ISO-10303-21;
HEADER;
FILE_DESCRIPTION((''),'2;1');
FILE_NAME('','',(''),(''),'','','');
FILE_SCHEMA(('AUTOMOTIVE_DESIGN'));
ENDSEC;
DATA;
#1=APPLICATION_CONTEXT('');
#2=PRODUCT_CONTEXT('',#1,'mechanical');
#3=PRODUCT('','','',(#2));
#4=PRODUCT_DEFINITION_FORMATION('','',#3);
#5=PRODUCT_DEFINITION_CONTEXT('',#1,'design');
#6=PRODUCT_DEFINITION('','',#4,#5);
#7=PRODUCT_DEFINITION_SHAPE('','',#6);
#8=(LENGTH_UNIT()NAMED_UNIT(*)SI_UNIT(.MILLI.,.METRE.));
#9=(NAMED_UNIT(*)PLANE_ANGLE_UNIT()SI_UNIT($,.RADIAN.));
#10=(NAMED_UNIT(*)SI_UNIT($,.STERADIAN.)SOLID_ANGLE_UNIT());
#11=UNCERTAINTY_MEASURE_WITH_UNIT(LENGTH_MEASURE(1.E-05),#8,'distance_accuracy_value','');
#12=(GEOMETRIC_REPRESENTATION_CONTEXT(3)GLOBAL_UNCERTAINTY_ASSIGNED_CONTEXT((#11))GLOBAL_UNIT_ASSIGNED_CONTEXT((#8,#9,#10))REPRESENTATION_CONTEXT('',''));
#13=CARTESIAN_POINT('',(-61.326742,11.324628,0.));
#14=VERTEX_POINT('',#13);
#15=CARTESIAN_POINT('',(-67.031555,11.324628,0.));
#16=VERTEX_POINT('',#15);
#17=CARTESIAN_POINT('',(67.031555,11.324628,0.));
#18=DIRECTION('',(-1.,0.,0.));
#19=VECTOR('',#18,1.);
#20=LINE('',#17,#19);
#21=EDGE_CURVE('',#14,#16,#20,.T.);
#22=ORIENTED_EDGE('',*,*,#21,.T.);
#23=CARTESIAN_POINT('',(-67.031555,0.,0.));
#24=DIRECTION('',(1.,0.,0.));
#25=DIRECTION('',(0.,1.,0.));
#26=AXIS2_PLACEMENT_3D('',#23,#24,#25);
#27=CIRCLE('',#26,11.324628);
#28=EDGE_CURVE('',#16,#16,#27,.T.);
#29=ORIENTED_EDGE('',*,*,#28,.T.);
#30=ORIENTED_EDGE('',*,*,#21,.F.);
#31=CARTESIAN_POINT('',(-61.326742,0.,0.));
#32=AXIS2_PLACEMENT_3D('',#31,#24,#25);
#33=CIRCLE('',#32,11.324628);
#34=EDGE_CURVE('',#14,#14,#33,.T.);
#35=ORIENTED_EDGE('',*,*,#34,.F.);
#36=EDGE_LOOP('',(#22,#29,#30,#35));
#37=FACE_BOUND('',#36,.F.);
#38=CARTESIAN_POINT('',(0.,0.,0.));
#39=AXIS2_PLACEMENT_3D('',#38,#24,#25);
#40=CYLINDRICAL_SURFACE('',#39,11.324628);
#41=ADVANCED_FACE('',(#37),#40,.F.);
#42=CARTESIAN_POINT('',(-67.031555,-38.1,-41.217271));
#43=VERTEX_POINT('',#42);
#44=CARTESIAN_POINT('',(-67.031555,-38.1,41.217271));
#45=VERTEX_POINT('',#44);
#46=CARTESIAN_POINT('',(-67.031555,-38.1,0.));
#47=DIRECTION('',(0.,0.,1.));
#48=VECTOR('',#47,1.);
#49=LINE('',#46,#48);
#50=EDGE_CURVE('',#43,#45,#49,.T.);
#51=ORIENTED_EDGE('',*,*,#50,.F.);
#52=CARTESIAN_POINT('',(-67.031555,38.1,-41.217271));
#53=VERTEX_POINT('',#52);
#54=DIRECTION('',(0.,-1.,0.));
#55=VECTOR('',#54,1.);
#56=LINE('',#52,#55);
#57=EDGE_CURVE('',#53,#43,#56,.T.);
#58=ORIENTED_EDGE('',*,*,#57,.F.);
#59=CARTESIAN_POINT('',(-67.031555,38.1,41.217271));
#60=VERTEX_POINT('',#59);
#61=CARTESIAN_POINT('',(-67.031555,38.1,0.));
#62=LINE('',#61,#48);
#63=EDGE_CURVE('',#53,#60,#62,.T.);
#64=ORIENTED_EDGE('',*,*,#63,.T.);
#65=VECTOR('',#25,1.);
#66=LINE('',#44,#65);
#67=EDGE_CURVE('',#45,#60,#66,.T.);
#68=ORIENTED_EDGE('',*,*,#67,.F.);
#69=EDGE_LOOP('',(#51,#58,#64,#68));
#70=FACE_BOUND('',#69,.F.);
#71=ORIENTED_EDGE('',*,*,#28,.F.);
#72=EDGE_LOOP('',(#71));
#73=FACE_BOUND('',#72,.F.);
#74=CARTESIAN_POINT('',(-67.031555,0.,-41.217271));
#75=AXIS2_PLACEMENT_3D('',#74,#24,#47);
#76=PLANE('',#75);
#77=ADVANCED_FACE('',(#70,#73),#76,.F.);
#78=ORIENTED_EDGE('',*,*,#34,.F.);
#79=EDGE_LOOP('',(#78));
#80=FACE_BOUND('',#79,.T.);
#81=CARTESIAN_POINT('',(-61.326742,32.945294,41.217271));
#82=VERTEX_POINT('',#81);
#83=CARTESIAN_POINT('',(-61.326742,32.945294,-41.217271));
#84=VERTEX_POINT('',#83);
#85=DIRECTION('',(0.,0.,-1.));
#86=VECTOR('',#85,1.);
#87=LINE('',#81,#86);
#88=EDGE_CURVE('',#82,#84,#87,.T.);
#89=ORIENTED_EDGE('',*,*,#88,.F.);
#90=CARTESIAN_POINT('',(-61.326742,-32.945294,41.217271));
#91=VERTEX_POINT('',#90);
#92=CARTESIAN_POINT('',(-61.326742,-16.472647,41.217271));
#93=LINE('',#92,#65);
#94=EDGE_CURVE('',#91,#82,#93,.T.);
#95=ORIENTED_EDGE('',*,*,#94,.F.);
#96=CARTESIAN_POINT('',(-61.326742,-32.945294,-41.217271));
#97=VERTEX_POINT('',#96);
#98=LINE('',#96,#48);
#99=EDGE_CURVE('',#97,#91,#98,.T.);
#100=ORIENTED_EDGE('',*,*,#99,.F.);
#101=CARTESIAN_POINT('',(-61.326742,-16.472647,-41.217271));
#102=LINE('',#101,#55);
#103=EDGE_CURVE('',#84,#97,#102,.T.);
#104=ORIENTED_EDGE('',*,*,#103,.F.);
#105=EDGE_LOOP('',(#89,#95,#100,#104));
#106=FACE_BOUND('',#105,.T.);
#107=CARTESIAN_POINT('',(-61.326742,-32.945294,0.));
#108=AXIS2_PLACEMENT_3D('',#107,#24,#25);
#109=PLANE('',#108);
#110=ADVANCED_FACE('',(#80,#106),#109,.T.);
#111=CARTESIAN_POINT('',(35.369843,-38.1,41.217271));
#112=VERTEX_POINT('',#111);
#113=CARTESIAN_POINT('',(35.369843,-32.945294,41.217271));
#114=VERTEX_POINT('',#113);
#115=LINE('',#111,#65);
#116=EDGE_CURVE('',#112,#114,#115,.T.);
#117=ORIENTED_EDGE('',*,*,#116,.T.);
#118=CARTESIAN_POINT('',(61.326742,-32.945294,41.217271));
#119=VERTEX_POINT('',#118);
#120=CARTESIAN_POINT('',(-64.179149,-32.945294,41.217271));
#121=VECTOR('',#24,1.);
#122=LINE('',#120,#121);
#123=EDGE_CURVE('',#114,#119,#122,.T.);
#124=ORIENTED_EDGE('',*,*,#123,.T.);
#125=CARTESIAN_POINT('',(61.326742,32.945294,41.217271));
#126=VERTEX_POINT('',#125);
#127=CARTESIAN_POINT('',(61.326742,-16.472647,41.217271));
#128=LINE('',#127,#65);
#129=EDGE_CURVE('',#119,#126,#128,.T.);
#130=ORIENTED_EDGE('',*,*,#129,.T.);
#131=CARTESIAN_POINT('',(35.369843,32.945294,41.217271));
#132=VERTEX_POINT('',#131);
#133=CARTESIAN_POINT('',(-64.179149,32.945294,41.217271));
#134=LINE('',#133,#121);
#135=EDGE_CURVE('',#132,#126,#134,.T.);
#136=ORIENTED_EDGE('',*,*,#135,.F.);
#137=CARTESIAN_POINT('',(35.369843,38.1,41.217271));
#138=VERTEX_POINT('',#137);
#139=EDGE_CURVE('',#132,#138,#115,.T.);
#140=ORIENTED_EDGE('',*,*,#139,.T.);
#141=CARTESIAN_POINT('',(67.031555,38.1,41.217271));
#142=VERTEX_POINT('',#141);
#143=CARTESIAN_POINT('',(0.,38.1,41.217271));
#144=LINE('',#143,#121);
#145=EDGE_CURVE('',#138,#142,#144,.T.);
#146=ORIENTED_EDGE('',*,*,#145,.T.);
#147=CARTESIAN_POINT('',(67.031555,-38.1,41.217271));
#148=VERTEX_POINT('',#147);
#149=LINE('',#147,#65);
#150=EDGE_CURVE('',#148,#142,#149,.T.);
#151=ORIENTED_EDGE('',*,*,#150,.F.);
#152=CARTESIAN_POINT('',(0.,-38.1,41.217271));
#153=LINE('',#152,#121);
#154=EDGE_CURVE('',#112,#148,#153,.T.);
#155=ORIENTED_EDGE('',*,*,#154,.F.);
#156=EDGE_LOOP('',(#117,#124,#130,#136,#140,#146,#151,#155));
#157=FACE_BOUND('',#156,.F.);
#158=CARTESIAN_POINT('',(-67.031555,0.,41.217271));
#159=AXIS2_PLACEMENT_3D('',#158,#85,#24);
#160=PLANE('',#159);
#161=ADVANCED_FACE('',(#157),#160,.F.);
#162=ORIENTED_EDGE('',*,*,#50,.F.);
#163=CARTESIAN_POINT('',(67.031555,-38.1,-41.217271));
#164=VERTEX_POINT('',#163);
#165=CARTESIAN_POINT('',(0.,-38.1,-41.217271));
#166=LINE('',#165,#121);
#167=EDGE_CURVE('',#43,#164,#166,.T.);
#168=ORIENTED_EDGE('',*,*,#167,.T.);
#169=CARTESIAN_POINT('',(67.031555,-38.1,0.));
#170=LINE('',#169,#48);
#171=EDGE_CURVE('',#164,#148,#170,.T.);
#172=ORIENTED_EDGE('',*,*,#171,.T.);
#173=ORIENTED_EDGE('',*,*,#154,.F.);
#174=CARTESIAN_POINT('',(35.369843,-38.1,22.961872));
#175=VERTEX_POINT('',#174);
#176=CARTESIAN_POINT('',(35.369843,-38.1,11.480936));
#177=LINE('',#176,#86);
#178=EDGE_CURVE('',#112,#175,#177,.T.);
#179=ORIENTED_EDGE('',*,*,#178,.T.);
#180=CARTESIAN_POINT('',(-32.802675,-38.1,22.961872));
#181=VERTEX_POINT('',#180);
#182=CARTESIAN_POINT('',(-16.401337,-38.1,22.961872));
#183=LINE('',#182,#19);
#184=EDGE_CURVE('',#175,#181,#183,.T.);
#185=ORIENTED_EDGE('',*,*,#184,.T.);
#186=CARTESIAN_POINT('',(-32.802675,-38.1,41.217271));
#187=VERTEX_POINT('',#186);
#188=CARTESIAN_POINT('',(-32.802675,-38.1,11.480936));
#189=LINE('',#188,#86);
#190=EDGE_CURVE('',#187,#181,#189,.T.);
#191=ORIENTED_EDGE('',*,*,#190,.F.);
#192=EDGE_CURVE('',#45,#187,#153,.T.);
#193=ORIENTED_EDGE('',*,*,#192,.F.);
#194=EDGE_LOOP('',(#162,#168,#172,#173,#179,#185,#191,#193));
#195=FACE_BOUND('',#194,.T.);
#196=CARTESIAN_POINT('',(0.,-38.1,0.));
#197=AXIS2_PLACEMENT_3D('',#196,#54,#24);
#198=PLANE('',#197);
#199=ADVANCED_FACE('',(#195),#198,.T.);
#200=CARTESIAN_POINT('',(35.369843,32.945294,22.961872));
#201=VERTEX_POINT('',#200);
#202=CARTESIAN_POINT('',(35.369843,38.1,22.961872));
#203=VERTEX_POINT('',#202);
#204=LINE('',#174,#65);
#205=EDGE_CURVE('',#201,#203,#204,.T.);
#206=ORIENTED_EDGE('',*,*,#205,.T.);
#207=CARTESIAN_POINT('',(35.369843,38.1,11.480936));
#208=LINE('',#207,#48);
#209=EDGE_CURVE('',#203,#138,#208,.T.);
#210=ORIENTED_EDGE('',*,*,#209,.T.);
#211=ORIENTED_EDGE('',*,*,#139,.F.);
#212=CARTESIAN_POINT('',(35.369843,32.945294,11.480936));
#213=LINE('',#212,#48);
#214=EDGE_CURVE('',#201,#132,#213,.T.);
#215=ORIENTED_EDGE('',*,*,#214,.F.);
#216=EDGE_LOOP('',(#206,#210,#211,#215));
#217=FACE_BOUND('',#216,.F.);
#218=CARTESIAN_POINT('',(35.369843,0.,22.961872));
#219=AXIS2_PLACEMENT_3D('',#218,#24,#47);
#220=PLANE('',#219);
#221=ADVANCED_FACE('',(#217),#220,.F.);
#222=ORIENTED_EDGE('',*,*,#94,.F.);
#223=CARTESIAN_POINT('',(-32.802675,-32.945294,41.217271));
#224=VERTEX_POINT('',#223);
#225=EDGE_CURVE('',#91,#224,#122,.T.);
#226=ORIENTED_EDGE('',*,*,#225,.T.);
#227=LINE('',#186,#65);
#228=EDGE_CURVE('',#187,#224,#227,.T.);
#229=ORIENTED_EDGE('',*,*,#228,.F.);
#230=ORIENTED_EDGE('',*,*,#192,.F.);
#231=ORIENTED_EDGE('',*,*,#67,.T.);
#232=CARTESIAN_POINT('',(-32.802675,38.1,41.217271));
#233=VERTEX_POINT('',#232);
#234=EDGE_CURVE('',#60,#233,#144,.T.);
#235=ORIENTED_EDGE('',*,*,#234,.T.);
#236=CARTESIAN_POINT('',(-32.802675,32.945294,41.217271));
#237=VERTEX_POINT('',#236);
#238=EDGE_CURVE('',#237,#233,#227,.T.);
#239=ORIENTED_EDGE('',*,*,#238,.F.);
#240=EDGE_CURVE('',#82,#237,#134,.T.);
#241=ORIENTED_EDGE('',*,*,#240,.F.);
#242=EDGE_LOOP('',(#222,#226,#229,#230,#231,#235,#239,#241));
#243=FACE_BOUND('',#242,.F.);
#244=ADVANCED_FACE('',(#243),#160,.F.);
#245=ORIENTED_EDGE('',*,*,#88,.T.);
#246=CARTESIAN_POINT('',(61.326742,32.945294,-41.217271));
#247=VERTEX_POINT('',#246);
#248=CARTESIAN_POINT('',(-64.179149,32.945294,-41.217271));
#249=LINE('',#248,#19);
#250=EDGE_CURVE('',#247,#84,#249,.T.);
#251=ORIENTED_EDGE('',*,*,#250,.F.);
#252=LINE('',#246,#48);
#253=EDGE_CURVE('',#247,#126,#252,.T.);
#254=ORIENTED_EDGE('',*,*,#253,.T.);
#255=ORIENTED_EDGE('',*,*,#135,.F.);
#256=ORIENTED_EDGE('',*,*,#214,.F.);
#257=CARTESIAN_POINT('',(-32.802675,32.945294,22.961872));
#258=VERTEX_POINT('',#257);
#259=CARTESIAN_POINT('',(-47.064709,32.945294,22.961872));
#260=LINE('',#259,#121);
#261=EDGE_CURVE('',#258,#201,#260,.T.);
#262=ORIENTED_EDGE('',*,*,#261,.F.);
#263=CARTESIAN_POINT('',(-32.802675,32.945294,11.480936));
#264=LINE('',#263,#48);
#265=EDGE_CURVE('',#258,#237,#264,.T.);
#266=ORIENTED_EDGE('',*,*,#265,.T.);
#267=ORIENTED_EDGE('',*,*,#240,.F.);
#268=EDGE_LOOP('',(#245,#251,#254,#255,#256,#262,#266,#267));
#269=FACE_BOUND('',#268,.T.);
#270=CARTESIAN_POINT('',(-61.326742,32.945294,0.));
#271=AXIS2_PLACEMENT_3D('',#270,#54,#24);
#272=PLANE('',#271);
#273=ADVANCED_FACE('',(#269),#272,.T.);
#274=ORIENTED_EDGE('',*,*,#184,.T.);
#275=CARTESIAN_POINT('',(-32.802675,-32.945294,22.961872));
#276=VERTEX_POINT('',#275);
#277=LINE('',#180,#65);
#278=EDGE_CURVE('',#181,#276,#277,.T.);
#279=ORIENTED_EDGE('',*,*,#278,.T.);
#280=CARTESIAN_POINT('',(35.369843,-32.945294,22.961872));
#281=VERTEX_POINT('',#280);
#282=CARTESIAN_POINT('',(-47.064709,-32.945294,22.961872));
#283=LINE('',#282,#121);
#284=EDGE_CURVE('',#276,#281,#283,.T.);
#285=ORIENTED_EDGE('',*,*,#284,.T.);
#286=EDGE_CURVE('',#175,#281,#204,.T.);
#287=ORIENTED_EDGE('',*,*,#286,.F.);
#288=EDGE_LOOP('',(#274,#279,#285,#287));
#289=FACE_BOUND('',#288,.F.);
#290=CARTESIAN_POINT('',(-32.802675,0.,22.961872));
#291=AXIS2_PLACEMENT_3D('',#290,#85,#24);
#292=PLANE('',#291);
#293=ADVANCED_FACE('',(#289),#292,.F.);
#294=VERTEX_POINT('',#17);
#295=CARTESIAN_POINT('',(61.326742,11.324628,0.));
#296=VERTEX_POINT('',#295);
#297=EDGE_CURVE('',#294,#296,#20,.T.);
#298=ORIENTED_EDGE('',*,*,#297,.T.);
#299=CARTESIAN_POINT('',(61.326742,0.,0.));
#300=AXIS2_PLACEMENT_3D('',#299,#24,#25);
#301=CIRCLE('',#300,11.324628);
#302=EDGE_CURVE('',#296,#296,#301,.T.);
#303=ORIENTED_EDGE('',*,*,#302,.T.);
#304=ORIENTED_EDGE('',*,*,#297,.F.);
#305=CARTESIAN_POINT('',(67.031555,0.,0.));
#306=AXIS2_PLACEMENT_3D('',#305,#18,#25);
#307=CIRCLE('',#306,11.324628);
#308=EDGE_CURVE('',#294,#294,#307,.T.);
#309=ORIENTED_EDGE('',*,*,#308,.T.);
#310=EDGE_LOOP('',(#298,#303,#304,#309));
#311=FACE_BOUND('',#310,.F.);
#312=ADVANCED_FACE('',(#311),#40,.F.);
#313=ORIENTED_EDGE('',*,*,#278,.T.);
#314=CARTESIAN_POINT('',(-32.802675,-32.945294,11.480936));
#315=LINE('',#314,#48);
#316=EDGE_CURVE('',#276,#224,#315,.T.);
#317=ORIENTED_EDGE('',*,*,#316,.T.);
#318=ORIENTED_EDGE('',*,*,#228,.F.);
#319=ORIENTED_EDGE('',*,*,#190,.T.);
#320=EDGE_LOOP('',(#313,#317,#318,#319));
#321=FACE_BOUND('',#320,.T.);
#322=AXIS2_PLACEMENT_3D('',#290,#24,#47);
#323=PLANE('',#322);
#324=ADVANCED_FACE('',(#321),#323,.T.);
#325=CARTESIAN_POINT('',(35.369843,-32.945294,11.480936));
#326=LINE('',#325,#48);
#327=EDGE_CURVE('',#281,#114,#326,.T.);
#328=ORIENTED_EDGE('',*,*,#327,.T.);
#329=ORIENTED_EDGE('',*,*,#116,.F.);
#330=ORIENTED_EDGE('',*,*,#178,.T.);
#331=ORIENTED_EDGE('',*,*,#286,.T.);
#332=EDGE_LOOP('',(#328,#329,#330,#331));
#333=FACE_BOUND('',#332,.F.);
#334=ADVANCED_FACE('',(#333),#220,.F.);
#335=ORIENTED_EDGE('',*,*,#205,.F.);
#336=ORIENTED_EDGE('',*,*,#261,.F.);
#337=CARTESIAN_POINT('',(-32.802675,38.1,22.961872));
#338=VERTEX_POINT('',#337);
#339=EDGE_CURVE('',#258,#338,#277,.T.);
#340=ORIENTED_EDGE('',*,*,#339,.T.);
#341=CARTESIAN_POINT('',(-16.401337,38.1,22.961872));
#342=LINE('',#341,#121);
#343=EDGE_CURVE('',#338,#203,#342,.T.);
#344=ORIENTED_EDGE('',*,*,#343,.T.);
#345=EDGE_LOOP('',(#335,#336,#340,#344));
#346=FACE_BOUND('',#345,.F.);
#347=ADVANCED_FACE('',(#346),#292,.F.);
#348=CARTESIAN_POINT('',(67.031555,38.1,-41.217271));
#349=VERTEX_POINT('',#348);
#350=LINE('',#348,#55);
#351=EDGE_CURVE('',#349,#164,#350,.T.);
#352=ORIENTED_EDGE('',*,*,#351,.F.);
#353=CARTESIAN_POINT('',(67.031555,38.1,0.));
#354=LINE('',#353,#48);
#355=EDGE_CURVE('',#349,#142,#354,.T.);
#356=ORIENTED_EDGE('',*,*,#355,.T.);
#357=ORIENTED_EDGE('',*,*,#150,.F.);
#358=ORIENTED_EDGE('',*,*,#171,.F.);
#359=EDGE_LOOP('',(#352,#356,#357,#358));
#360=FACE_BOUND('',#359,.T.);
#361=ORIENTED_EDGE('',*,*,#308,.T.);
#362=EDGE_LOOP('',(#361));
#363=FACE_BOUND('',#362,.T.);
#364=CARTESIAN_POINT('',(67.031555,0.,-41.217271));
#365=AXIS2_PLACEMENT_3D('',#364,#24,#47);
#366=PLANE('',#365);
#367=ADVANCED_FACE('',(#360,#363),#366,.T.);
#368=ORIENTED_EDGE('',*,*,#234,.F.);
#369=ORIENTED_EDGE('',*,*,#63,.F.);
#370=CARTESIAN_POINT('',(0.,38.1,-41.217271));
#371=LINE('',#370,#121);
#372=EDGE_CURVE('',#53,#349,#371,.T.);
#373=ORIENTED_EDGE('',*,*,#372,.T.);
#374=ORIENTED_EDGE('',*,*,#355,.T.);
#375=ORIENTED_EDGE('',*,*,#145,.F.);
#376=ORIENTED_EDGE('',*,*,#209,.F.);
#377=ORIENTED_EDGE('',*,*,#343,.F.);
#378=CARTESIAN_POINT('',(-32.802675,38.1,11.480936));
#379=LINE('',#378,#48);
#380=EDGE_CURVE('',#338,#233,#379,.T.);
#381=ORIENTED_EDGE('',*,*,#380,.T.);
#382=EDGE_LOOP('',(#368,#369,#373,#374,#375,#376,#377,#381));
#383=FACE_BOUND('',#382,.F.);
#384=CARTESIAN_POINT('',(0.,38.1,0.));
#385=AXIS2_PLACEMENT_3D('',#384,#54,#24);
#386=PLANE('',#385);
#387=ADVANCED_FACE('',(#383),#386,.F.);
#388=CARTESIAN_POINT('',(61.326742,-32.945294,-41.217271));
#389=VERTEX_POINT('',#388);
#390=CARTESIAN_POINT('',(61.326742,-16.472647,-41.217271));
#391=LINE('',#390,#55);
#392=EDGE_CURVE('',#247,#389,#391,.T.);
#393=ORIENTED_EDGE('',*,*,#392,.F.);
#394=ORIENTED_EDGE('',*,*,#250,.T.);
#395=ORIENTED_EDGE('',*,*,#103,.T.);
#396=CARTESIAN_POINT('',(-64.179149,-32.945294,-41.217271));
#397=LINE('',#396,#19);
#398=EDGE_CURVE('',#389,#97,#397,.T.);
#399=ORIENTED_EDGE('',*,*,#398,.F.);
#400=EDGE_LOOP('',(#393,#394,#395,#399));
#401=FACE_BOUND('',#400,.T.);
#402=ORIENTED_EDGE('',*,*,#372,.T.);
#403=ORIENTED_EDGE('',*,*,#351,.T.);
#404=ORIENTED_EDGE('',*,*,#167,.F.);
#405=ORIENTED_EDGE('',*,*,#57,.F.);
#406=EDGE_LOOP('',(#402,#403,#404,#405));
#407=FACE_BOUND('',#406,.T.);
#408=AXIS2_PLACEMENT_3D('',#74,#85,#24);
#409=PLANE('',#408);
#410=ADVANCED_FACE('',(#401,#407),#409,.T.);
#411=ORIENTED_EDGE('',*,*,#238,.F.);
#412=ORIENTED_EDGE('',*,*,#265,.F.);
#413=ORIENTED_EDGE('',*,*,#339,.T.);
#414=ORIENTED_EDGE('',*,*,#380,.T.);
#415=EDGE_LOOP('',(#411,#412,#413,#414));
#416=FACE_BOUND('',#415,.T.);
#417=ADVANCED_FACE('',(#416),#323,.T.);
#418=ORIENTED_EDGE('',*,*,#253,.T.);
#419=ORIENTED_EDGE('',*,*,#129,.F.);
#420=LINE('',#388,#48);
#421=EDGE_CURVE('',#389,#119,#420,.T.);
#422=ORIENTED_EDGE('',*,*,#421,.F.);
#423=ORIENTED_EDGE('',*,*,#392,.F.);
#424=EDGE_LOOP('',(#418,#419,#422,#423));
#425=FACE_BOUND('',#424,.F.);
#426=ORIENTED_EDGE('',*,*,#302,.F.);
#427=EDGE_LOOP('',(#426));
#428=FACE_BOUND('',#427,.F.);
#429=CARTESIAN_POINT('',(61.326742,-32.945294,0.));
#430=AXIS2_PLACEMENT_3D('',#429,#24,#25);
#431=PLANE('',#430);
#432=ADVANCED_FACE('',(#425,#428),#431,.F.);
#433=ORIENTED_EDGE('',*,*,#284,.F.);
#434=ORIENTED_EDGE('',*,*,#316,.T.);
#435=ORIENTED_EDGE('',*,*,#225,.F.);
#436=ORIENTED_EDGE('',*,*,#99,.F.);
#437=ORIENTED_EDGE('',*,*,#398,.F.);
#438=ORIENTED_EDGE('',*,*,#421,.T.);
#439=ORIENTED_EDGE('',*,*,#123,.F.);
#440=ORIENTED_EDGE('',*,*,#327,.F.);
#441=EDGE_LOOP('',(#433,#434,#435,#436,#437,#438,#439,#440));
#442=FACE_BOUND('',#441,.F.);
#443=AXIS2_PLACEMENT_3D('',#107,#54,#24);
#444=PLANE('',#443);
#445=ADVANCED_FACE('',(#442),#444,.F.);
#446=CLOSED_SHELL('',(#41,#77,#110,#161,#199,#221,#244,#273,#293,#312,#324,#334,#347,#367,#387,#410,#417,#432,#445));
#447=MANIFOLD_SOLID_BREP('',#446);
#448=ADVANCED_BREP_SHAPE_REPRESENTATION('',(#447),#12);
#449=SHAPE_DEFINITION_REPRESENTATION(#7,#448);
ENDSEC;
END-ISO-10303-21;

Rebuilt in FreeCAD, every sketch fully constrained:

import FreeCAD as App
import Part
import Sketcher

V = App.Vector
Q = App.Units.Quantity


def add_polygon(sketch, points):
    """Adds a closed chain of lines whose ends are joined by coincident constraints."""
    first, n = sketch.GeometryCount, len(points)
    for a, b in zip(points, points[1:] + points[:1]):
        sketch.addGeometry(Part.LineSegment(App.Vector(*a, 0), App.Vector(*b, 0)), False)
    for i in range(n):
        sketch.addConstraint(Sketcher.Constraint("Coincident", first + i, 2, first + (i + 1) % n, 1))

doc = App.newDocument("Part")
body = doc.addObject("PartDesign::Body", "Body")

# Sketch on XZ plane
sketch1 = body.newObject("Sketcher::SketchObject", "Sketch")
sketch1.AttachmentSupport = (doc.getObject("XZ_Plane"), [""])
sketch1.MapMode = "FlatFace"
add_polygon(sketch1, [(-67, 41), (-67, -41), (67, -41), (67, 41)])  # lines 0-3
sketch1.addConstraint(Sketcher.Constraint("Vertical", 0))
sketch1.addConstraint(Sketcher.Constraint("Horizontal", 1))
sketch1.addConstraint(Sketcher.Constraint("Vertical", 2))
sketch1.addConstraint(Sketcher.Constraint("Horizontal", 3))
sketch1.addConstraint(Sketcher.Constraint("Symmetric", 0, 2, 2, 2, -1, 1))
sketch1.addConstraint(Sketcher.Constraint("DistanceX", 1, 1, 1, 2, 134.06311))
sketch1.addConstraint(Sketcher.Constraint("DistanceY", 0, 2, 0, 1, 82.434542))
pad1 = body.newObject("PartDesign::Pad", "Pad")
pad1.Profile = sketch1
pad1.Type = "TwoLengths"
pad1.Length = Q("1.5 in")
pad1.Length2 = Q("1.5 in")

# Sketch on YZ plane
sketch2 = body.newObject("Sketcher::SketchObject", "Sketch001")
sketch2.AttachmentSupport = (doc.getObject("YZ_Plane"), [""])
sketch2.MapMode = "FlatFace"
sketch2.addGeometry(Part.Circle(V(0, 0, 0), V(0, 0, 1), 11), False)
sketch2.addConstraint(Sketcher.Constraint("Coincident", 0, 3, -1, 1))
sketch2.addConstraint(Sketcher.Constraint("Diameter", 0, 22.649256))
pocket1 = body.newObject("PartDesign::Pocket", "Pocket")
pocket1.Profile = sketch2
pocket1.Type = "ThroughAll"
pocket1.Midplane = True

# Sketch on XZ plane
sketch3 = body.newObject("Sketcher::SketchObject", "Sketch002")
sketch3.AttachmentSupport = (doc.getObject("XZ_Plane"), [""])
sketch3.MapMode = "FlatFace"
add_polygon(sketch3, [(-33, 57), (-33, 23), (35, 23), (35, 57)])  # lines 0-3
sketch3.addConstraint(Sketcher.Constraint("Vertical", 0))
sketch3.addConstraint(Sketcher.Constraint("Horizontal", 1))
sketch3.addConstraint(Sketcher.Constraint("Vertical", 2))
sketch3.addConstraint(Sketcher.Constraint("Horizontal", 3))
sketch3.addConstraint(Sketcher.Constraint("DistanceX", 1, 1, 1, 2, 68.172518))
sketch3.addConstraint(Sketcher.Constraint("DistanceY", 0, 2, 0, 1, 33.943636))
sketch3.addConstraint(Sketcher.Constraint("DistanceY", -1, 1, 0, 2, 22.961872))
sketch3.addConstraint(Sketcher.Constraint("DistanceX", 0, 2, -1, 1, 32.802675))
pocket2 = body.newObject("PartDesign::Pocket", "Pocket001")
pocket2.Profile = sketch3
pocket2.Type = "ThroughAll"
pocket2.Midplane = True

# Sketch on XY plane
sketch4 = body.newObject("Sketcher::SketchObject", "Sketch003")
sketch4.AttachmentSupport = (doc.getObject("XY_Plane"), [""])
sketch4.MapMode = "FlatFace"
add_polygon(sketch4, [(-61, 33), (-61, -33), (61, -33), (61, 33)])  # lines 0-3
sketch4.addConstraint(Sketcher.Constraint("Vertical", 0))
sketch4.addConstraint(Sketcher.Constraint("Horizontal", 1))
sketch4.addConstraint(Sketcher.Constraint("Vertical", 2))
sketch4.addConstraint(Sketcher.Constraint("Horizontal", 3))
sketch4.addConstraint(Sketcher.Constraint("Symmetric", 0, 2, 2, 2, -1, 1))
sketch4.addConstraint(Sketcher.Constraint("DistanceX", 1, 1, 1, 2, 122.653484))
sketch4.addConstraint(Sketcher.Constraint("DistanceY", 0, 2, 0, 1, 65.890588))
pocket3 = body.newObject("PartDesign::Pocket", "Pocket002")
pocket3.Profile = sketch4
pocket3.Type = "ThroughAll"
pocket3.Midplane = True

doc.recompute()
